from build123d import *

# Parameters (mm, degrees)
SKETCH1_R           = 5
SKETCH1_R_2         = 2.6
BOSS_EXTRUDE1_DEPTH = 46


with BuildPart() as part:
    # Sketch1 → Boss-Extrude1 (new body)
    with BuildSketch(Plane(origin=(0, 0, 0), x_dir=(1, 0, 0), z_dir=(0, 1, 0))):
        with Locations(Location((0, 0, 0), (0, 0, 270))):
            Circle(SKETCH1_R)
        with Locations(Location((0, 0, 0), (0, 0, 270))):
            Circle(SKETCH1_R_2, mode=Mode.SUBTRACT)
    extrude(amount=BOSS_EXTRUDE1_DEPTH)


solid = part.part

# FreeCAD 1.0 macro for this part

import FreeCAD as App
import Part
import Sketcher
from FreeCAD import Vector
Q = App.Units.Quantity

doc = App.newDocument("Part")
params = doc.addObject("Spreadsheet::Sheet", "Params")
for row, (alias, value) in enumerate([
    ("sketch1_diameter", "10 mm"),
    ("sketch1_diameter2", "5.2 mm"),
    ("pad1_length", "46 mm"),
], start=1):
    params.set(f"A{row}", alias)
    params.set(f"B{row}", "=" + value)
    params.setAlias(f"B{row}", alias)

body = doc.addObject("PartDesign::Body", "Body")

sketch1 = body.newObject("Sketcher::SketchObject", "Sketch")
sketch1.AttachmentSupport = (doc.getObject("XZ_Plane"), [""])
sketch1.MapMode = "FlatFace"
sketch1.addGeometry([
    Part.Circle(Vector(0, 0, 0), Vector(0, 0, 1), 5),
    Part.Circle(Vector(0, 0, 0), Vector(0, 0, 1), 2.6),
], False)
sketch1.addConstraint([
    Sketcher.Constraint("Coincident", 0, 3, -1, 1),
    Sketcher.Constraint("Coincident", 1, 3, -1, 1),
    Sketcher.Constraint("Diameter", 0, Q("10 mm")),
    Sketcher.Constraint("Diameter", 1, Q("5.2 mm")),
])
sketch1.setExpression("Constraints[2]", "Params.sketch1_diameter")
sketch1.setExpression("Constraints[3]", "Params.sketch1_diameter2")
pad1 = body.newObject("PartDesign::Pad", "Pad")
pad1.Profile = sketch1
pad1.setExpression("Length", "Params.pad1_length")
pad1.Reversed = True

doc.recompute()
